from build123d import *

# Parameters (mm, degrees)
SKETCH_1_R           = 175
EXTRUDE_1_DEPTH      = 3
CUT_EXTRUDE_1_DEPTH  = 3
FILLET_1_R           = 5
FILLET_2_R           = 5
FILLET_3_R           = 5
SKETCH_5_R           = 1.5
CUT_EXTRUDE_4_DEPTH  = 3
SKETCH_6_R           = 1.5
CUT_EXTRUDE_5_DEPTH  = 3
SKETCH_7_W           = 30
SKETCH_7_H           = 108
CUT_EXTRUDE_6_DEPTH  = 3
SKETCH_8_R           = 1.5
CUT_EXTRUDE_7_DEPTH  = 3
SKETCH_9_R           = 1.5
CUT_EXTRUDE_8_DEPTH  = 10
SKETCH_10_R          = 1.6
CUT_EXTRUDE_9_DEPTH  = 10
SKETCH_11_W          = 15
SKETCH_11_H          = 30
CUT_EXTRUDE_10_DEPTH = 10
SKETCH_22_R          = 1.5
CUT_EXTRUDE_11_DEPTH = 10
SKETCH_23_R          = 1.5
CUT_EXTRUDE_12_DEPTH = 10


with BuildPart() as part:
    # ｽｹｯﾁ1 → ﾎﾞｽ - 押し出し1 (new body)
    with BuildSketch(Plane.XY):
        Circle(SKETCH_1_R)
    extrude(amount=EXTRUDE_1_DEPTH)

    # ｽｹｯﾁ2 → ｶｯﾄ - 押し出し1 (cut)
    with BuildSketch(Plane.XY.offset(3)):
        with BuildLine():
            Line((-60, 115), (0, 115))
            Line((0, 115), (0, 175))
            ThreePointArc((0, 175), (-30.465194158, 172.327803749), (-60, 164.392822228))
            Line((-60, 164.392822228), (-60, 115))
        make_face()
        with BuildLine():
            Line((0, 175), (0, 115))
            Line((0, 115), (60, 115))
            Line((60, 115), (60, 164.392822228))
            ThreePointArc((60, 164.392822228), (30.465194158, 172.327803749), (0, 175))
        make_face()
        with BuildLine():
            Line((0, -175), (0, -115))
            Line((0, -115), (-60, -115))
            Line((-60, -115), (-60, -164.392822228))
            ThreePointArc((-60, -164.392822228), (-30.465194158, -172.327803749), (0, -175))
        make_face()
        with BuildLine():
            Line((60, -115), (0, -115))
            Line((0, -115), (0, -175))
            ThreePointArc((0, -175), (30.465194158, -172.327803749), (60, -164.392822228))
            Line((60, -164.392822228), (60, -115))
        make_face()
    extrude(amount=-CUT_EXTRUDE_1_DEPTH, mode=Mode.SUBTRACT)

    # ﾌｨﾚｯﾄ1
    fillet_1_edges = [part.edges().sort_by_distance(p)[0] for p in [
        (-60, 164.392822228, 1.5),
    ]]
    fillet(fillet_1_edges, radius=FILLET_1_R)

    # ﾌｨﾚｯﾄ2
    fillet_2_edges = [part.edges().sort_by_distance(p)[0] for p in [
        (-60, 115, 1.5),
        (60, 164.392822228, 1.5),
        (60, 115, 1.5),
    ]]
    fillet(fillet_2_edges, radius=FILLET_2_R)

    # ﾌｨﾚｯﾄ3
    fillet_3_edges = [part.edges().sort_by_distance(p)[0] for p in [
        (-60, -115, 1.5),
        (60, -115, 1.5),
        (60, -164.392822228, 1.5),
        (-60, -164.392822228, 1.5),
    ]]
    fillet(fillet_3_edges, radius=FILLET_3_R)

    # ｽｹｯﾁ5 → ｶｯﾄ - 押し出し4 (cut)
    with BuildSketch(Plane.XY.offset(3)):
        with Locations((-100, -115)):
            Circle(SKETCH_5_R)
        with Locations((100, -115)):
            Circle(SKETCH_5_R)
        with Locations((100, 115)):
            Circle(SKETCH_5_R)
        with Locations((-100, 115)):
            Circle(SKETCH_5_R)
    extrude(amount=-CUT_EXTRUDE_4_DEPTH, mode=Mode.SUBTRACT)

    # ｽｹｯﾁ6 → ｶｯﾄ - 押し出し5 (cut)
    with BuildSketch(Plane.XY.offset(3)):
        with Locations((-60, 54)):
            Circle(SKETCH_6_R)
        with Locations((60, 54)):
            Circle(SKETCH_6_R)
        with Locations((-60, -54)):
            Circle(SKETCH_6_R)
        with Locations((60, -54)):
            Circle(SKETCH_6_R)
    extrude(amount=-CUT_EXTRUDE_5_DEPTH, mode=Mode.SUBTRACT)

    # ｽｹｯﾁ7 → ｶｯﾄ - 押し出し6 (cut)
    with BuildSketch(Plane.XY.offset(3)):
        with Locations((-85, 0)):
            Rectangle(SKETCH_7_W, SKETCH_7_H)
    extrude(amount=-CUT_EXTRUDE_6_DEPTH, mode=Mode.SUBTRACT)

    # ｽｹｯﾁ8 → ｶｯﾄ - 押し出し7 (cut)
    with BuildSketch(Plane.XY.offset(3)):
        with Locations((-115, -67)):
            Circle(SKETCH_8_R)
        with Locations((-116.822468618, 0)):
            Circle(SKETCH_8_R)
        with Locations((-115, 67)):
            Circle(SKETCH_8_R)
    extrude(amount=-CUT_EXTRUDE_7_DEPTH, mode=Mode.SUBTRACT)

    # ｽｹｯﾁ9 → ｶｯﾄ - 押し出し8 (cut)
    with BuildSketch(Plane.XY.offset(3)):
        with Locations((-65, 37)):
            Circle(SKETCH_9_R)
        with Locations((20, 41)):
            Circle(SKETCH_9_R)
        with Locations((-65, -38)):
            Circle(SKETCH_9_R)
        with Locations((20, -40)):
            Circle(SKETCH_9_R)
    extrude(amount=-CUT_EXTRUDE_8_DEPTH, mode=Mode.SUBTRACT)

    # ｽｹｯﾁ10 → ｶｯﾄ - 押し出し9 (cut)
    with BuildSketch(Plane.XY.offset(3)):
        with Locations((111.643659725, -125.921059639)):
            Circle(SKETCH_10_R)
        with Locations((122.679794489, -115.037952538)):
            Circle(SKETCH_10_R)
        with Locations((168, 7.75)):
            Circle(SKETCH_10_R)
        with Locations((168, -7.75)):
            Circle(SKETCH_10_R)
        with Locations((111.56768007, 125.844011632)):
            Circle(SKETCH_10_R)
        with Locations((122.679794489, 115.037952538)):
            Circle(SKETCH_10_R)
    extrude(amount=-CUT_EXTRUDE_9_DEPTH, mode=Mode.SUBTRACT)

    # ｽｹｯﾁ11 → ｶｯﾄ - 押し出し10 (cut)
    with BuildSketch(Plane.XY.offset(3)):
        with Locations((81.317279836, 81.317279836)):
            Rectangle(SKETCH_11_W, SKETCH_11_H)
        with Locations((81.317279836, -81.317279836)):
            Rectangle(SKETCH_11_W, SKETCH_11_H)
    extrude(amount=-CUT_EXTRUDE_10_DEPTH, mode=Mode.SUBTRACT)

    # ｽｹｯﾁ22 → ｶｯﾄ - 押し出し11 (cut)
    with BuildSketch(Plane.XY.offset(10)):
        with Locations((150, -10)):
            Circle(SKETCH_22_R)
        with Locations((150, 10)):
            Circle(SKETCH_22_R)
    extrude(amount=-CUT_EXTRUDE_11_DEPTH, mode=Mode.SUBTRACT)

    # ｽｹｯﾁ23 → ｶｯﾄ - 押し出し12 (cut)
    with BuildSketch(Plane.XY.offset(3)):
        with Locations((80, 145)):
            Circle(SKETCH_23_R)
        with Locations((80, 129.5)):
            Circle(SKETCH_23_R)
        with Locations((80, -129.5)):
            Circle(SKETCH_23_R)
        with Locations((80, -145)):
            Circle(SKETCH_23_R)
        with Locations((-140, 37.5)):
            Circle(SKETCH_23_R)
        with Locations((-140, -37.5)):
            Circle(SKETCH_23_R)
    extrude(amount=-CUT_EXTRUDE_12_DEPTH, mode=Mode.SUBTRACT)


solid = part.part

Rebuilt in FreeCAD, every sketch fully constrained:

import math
import FreeCAD as App
import Part
import Sketcher
Q = App.Units.Quantity


def edges_at(feature, points):
    """Names of the edges that pass closest to the given points."""
    edges = feature.Shape.Edges
    near = lambda p: min(range(len(edges)), key=lambda i: edges[i].distToShape(Part.Vertex(*p))[0])
    return sorted({f"Edge{near(p) + 1}" for p in points})


def add_polygon(sketch, points):
    """Adds a closed chain of lines whose ends are joined by coincident constraints."""
    first, n = sketch.GeometryCount, len(points)
    for a, b in zip(points, points[1:] + points[:1]):
        sketch.addGeometry(Part.LineSegment(App.Vector(*a, 0), App.Vector(*b, 0)), False)
    for i in range(n):
        sketch.addConstraint(Sketcher.Constraint("Coincident", first + i, 2, first + (i + 1) % n, 1))

doc = App.newDocument("Part")
params = doc.addObject("Spreadsheet::Sheet", "Params")
for row, (alias, value) in enumerate([
    ("sketch1_diameter", "350 mm"),
    ("pad1_length", "3 mm"),
    ("sketch2_radius", "175 mm"),
    ("sketch2_width", "120 mm"),
    ("pocket1_length", "3 mm"),
    ("fillet_radius", "5 mm"),
    ("fillet2_radius", "5 mm"),
    ("fillet3_radius", "5 mm"),
    ("sketch3_diameter", "3 mm"),
    ("pocket2_length", "3 mm"),
    ("sketch4_diameter", "3 mm"),
    ("pocket3_length", "3 mm"),
    ("sketch5_width", "30 mm"),
    ("sketch5_height", "108 mm"),
    ("pocket4_length", "3 mm"),
    ("sketch6_diameter", "3 mm"),
    ("pocket5_length", "3 mm"),
    ("sketch7_diameter", "3 mm"),
    ("pocket6_length", "10 mm"),
    ("sketch8_diameter", "3.2 mm"),
    ("pocket7_length", "10 mm"),
    ("sketch9_width", "15 mm"),
    ("sketch9_height", "30 mm"),
    ("pocket8_length", "10 mm"),
    ("sketch10_diameter", "3 mm"),
    ("pocket9_length", "10 mm"),
    ("sketch11_diameter", "3 mm"),
    ("pocket10_length", "10 mm"),
], start=1):
    params.set(f"A{row}", alias)
    params.set(f"B{row}", "=" + value)
    params.setAlias(f"B{row}", alias)

body = doc.addObject("PartDesign::Body", "Body")

# Sketch on XY plane
sketch1 = body.newObject("Sketcher::SketchObject", "Sketch")
sketch1.AttachmentSupport = (doc.getObject("XY_Plane"), [""])
sketch1.MapMode = "FlatFace"
sketch1.addGeometry(Part.Circle(App.Vector(0, 0, 0), App.Vector(0, 0, 1), 175), False)
sketch1.addConstraint([
    Sketcher.Constraint("Coincident", 0, 3, -1, 1),
    Sketcher.Constraint("Diameter", 0, Q("350 mm")),
])
sketch1.setExpression("Constraints[1]", "Params.sketch1_diameter")
pad1 = body.newObject("PartDesign::Pad", "Pad")
pad1.Profile = sketch1
pad1.setExpression("Length", "Params.pad1_length")

# Sketch on XY plane
sketch2 = body.newObject("Sketcher::SketchObject", "Sketch001")
sketch2.AttachmentSupport = (doc.getObject("XY_Plane"), [""])
sketch2.MapMode = "FlatFace"
sketch2.AttachmentOffset = App.Placement(App.Vector(0, 0, 3), App.Rotation())
sketch2.addGeometry([
    Part.LineSegment(App.Vector(-60, 115, 0), App.Vector(60, 115, 0)),  # 0
    Part.LineSegment(App.Vector(60, 115, 0), App.Vector(60, 164, 0)),  # 1
    Part.ArcOfCircle(Part.Circle(App.Vector(0, 0, 0), App.Vector(0, 0, 1), 175), math.radians(70), math.radians(90)),  # 2
    Part.ArcOfCircle(Part.Circle(App.Vector(0, 0, 0), App.Vector(0, 0, 1), 175), math.radians(90), math.radians(110)),  # 3
    Part.LineSegment(App.Vector(-60, 164, 0), App.Vector(-60, 115, 0)),  # 4
    Part.LineSegment(App.Vector(-60, -115, 0), App.Vector(-60, -164, 0)),  # 5
    Part.ArcOfCircle(Part.Circle(App.Vector(0, 0, 0), App.Vector(0, 0, 1), 175), math.radians(-110), math.radians(-90)),  # 6
    Part.ArcOfCircle(Part.Circle(App.Vector(0, 0, 0), App.Vector(0, 0, 1), 175), math.radians(-90), math.radians(-70)),  # 7
    Part.LineSegment(App.Vector(60, -164, 0), App.Vector(60, -115, 0)),  # 8
    Part.LineSegment(App.Vector(60, -115, 0), App.Vector(-60, -115, 0)),  # 9
], False)
sketch2.addConstraint([
    Sketcher.Constraint("Coincident", 0, 2, 1, 1),
    Sketcher.Constraint("Coincident", 1, 2, 2, 1),
    Sketcher.Constraint("Tangent", 2, 2, 3, 1),
    Sketcher.Constraint("Coincident", 3, 2, 4, 1),
    Sketcher.Constraint("Coincident", 4, 2, 0, 1),
    Sketcher.Constraint("Coincident", 5, 2, 6, 1),
    Sketcher.Constraint("Tangent", 6, 2, 7, 1),
    Sketcher.Constraint("Coincident", 7, 2, 8, 1),
    Sketcher.Constraint("Coincident", 8, 2, 9, 1),
    Sketcher.Constraint("Coincident", 9, 2, 5, 1),
    Sketcher.Constraint("Horizontal", 0),
    Sketcher.Constraint("Vertical", 1),
    Sketcher.Constraint("Vertical", 4),
    Sketcher.Constraint("Vertical", 5),
    Sketcher.Constraint("Vertical", 8),
    Sketcher.Constraint("Horizontal", 9),
    Sketcher.Constraint("Coincident", 2, 3, -1, 1),
    Sketcher.Constraint("Coincident", 6, 3, -1, 1),
    Sketcher.Constraint("Equal", 2, 3),
    Sketcher.Constraint("Equal", 3, 6),
    Sketcher.Constraint("Equal", 6, 7),
    Sketcher.Constraint("Symmetric", 4, 2, 8, 2, -1, 1),
    Sketcher.Constraint("PointOnObject", 2, 2, -2),
    Sketcher.Constraint("PointOnObject", 6, 2, -2),
    Sketcher.Constraint("Horizontal", 1, 2, 3, 2),
    Sketcher.Constraint("Horizontal", 5, 2, 7, 2),
    Sketcher.Constraint("Radius", 2, Q("175 mm")),
    Sketcher.Constraint("DistanceX", 0, 1, 0, 2, Q("120 mm")),
    Sketcher.Constraint("DistanceY", -1, 1, 0, 2, Q("115 mm")),
])
sketch2.setExpression("Constraints[26]", "Params.sketch2_radius")
sketch2.setExpression("Constraints[27]", "Params.sketch2_width")
pocket1 = body.newObject("PartDesign::Pocket", "Pocket")
pocket1.Profile = sketch2
pocket1.setExpression("Length", "Params.pocket1_length")
doc.recompute()

fillet = body.newObject("PartDesign::Fillet", "Fillet")
fillet.Base = (pocket1, edges_at(pocket1, [(-60, 164.393, 1.5)]))
fillet.setExpression("Radius", "Params.fillet_radius")
doc.recompute()

fillet2 = body.newObject("PartDesign::Fillet", "Fillet001")
fillet2.Base = (fillet, edges_at(fillet, [(-60, 115, 1.5), (60, 164.393, 1.5), (60, 115, 1.5)]))
fillet2.setExpression("Radius", "Params.fillet2_radius")
doc.recompute()

fillet3 = body.newObject("PartDesign::Fillet", "Fillet002")
fillet3.Base = (fillet2, edges_at(fillet2, [
    (-60, -115, 1.5),
    (60, -115, 1.5),
    (60, -164.393, 1.5),
    (-60, -164.393, 1.5),
]))
fillet3.setExpression("Radius", "Params.fillet3_radius")

# Sketch on XY plane
sketch3 = body.newObject("Sketcher::SketchObject", "Sketch002")
sketch3.AttachmentSupport = (doc.getObject("XY_Plane"), [""])
sketch3.MapMode = "FlatFace"
sketch3.AttachmentOffset = App.Placement(App.Vector(0, 0, 3), App.Rotation())
sketch3.addGeometry([
    Part.Circle(App.Vector(-100, -115, 0), App.Vector(0, 0, 1), 1.5),
    Part.Circle(App.Vector(100, -115, 0), App.Vector(0, 0, 1), 1.5),
    Part.Circle(App.Vector(100, 115, 0), App.Vector(0, 0, 1), 1.5),
    Part.Circle(App.Vector(-100, 115, 0), App.Vector(0, 0, 1), 1.5),
], False)
sketch3.addConstraint([
    Sketcher.Constraint("Equal", 0, 1),
    Sketcher.Constraint("Equal", 1, 2),
    Sketcher.Constraint("Equal", 2, 3),
    Sketcher.Constraint("Symmetric", 0, 3, 2, 3, -1, 1),
    Sketcher.Constraint("Symmetric", 1, 3, 3, 3, -1, 1),
    Sketcher.Constraint("Symmetric", 0, 3, 1, 3, -2),
    Sketcher.Constraint("Diameter", 0, Q("3 mm")),
    Sketcher.Constraint("DistanceX", 0, 3, -1, 1, Q("100 mm")),
    Sketcher.Constraint("DistanceY", 0, 3, -1, 1, Q("115 mm")),
])
sketch3.setExpression("Constraints[6]", "Params.sketch3_diameter")
pocket2 = body.newObject("PartDesign::Pocket", "Pocket001")
pocket2.Profile = sketch3
pocket2.setExpression("Length", "Params.pocket2_length")

# Sketch on XY plane
sketch4 = body.newObject("Sketcher::SketchObject", "Sketch003")
sketch4.AttachmentSupport = (doc.getObject("XY_Plane"), [""])
sketch4.MapMode = "FlatFace"
sketch4.AttachmentOffset = App.Placement(App.Vector(0, 0, 3), App.Rotation())
sketch4.addGeometry([
    Part.Circle(App.Vector(-60, 54, 0), App.Vector(0, 0, 1), 1.5),
    Part.Circle(App.Vector(60, 54, 0), App.Vector(0, 0, 1), 1.5),
    Part.Circle(App.Vector(-60, -54, 0), App.Vector(0, 0, 1), 1.5),
    Part.Circle(App.Vector(60, -54, 0), App.Vector(0, 0, 1), 1.5),
], False)
sketch4.addConstraint([
    Sketcher.Constraint("Equal", 0, 1),
    Sketcher.Constraint("Equal", 1, 2),
    Sketcher.Constraint("Equal", 2, 3),
    Sketcher.Constraint("Symmetric", 1, 3, 2, 3, -1, 1),
    Sketcher.Constraint("Symmetric", 0, 3, 3, 3, -1, 1),
    Sketcher.Constraint("Symmetric", 0, 3, 1, 3, -2),
    Sketcher.Constraint("Diameter", 0, Q("3 mm")),
    Sketcher.Constraint("DistanceX", 0, 3, -1, 1, Q("60 mm")),
    Sketcher.Constraint("DistanceY", -1, 1, 0, 3, Q("54 mm")),
])
sketch4.setExpression("Constraints[6]", "Params.sketch4_diameter")
pocket3 = body.newObject("PartDesign::Pocket", "Pocket002")
pocket3.Profile = sketch4
pocket3.setExpression("Length", "Params.pocket3_length")

# Sketch on XY plane
sketch5 = body.newObject("Sketcher::SketchObject", "Sketch004")
sketch5.AttachmentSupport = (doc.getObject("XY_Plane"), [""])
sketch5.MapMode = "FlatFace"
sketch5.AttachmentOffset = App.Placement(App.Vector(0, 0, 3), App.Rotation())
add_polygon(sketch5, [(-100, 54), (-100, -54), (-70, -54), (-70, 54)])  # lines 0-3
sketch5.addConstraint([
    Sketcher.Constraint("Vertical", 0),
    Sketcher.Constraint("Horizontal", 1),
    Sketcher.Constraint("Vertical", 2),
    Sketcher.Constraint("Horizontal", 3),
    Sketcher.Constraint("DistanceX", 1, 1, 1, 2, Q("30 mm")),
    Sketcher.Constraint("DistanceY", 0, 2, 0, 1, Q("108 mm")),
    Sketcher.Constraint("DistanceX", 0, 2, -1, 1, Q("100 mm")),
    Sketcher.Constraint("DistanceY", 0, 2, -1, 1, Q("54 mm")),
])
sketch5.setExpression("Constraints[8]", "Params.sketch5_width")
sketch5.setExpression("Constraints[9]", "Params.sketch5_height")
pocket4 = body.newObject("PartDesign::Pocket", "Pocket003")
pocket4.Profile = sketch5
pocket4.setExpression("Length", "Params.pocket4_length")

# Sketch on XY plane
sketch6 = body.newObject("Sketcher::SketchObject", "Sketch005")
sketch6.AttachmentSupport = (doc.getObject("XY_Plane"), [""])
sketch6.MapMode = "FlatFace"
sketch6.AttachmentOffset = App.Placement(App.Vector(0, 0, 3), App.Rotation())
sketch6.addGeometry([
    Part.Circle(App.Vector(-115, -67, 0), App.Vector(0, 0, 1), 1.5),
    Part.Circle(App.Vector(-116.8, 0, 0), App.Vector(0, 0, 1), 1.5),
    Part.Circle(App.Vector(-115, 67, 0), App.Vector(0, 0, 1), 1.5),
], False)
sketch6.addConstraint([
    Sketcher.Constraint("Equal", 0, 1),
    Sketcher.Constraint("Equal", 1, 2),
    Sketcher.Constraint("Symmetric", 0, 3, 2, 3, -1),
    Sketcher.Constraint("PointOnObject", 1, 3, -1),
    Sketcher.Constraint("Diameter", 0, Q("3 mm")),
    Sketcher.Constraint("DistanceX", 0, 3, -1, 1, Q("115 mm")),
    Sketcher.Constraint("DistanceY", 0, 3, -1, 1, Q("67 mm")),
    Sketcher.Constraint("DistanceX", 1, 3, -1, 1, Q("116.822469 mm")),
])
sketch6.setExpression("Constraints[4]", "Params.sketch6_diameter")
pocket5 = body.newObject("PartDesign::Pocket", "Pocket004")
pocket5.Profile = sketch6
pocket5.setExpression("Length", "Params.pocket5_length")

# Sketch on XY plane
sketch7 = body.newObject("Sketcher::SketchObject", "Sketch006")
sketch7.AttachmentSupport = (doc.getObject("XY_Plane"), [""])
sketch7.MapMode = "FlatFace"
sketch7.AttachmentOffset = App.Placement(App.Vector(0, 0, 3), App.Rotation())
sketch7.addGeometry([
    Part.Circle(App.Vector(-65, 37, 0), App.Vector(0, 0, 1), 1.5),
    Part.Circle(App.Vector(20, 41, 0), App.Vector(0, 0, 1), 1.5),
    Part.Circle(App.Vector(-65, -38, 0), App.Vector(0, 0, 1), 1.5),
    Part.Circle(App.Vector(20, -40, 0), App.Vector(0, 0, 1), 1.5),
], False)
sketch7.addConstraint([
    Sketcher.Constraint("Equal", 0, 1),
    Sketcher.Constraint("Equal", 1, 2),
    Sketcher.Constraint("Equal", 2, 3),
    Sketcher.Constraint("Vertical", 0, 3, 2, 3),
    Sketcher.Constraint("Vertical", 1, 3, 3, 3),
    Sketcher.Constraint("Diameter", 0, Q("3 mm")),
    Sketcher.Constraint("DistanceX", 0, 3, -1, 1, Q("65 mm")),
    Sketcher.Constraint("DistanceY", -1, 1, 0, 3, Q("37 mm")),
    Sketcher.Constraint("DistanceX", -1, 1, 1, 3, Q("20 mm")),
    Sketcher.Constraint("DistanceY", -1, 1, 1, 3, Q("41 mm")),
    Sketcher.Constraint("DistanceY", 2, 3, -1, 1, Q("38 mm")),
    Sketcher.Constraint("DistanceY", 3, 3, -1, 1, Q("40 mm")),
])
sketch7.setExpression("Constraints[5]", "Params.sketch7_diameter")
pocket6 = body.newObject("PartDesign::Pocket", "Pocket005")
pocket6.Profile = sketch7
pocket6.setExpression("Length", "Params.pocket6_length")

# Sketch on XY plane
sketch8 = body.newObject("Sketcher::SketchObject", "Sketch007")
sketch8.AttachmentSupport = (doc.getObject("XY_Plane"), [""])
sketch8.MapMode = "FlatFace"
sketch8.AttachmentOffset = App.Placement(App.Vector(0, 0, 3), App.Rotation())
sketch8.addGeometry([
    Part.Circle(App.Vector(111.6, -125.9, 0), App.Vector(0, 0, 1), 1.6),  # 0
    Part.Circle(App.Vector(122.7, -115, 0), App.Vector(0, 0, 1), 1.6),  # 1
    Part.Circle(App.Vector(168, 7.8, 0), App.Vector(0, 0, 1), 1.6),  # 2
    Part.Circle(App.Vector(168, -7.8, 0), App.Vector(0, 0, 1), 1.6),  # 3
    Part.Circle(App.Vector(111.6, 125.8, 0), App.Vector(0, 0, 1), 1.6),  # 4
    Part.Circle(App.Vector(122.7, 115, 0), App.Vector(0, 0, 1), 1.6),  # 5
], False)
sketch8.addConstraint([
    Sketcher.Constraint("Equal", 0, 1),
    Sketcher.Constraint("Equal", 1, 2),
    Sketcher.Constraint("Equal", 2, 3),
    Sketcher.Constraint("Equal", 3, 4),
    Sketcher.Constraint("Equal", 4, 5),
    Sketcher.Constraint("Symmetric", 2, 3, 3, 3, -1),
    Sketcher.Constraint("Symmetric", 1, 3, 5, 3, -1),
    Sketcher.Constraint("Diameter", 0, Q("3.2 mm")),
    Sketcher.Constraint("DistanceX", -1, 1, 2, 3, Q("168 mm")),
    Sketcher.Constraint("DistanceY", 3, 3, 2, 3, Q("15.5 mm")),
    Sketcher.Constraint("DistanceX", -1, 1, 0, 3, Q("111.64366 mm")),
    Sketcher.Constraint("DistanceY", 0, 3, -1, 1, Q("125.92106 mm")),
    Sketcher.Constraint("DistanceX", -1, 1, 4, 3, Q("111.56768 mm")),
    Sketcher.Constraint("DistanceY", -1, 1, 4, 3, Q("125.844012 mm")),
    Sketcher.Constraint("DistanceY", 5, 3, 4, 3, Q("10.806059 mm")),
    Sketcher.Constraint("DistanceX", -1, 1, 1, 3, Q("122.679794 mm")),
])
sketch8.setExpression("Constraints[7]", "Params.sketch8_diameter")
pocket7 = body.newObject("PartDesign::Pocket", "Pocket006")
pocket7.Profile = sketch8
pocket7.setExpression("Length", "Params.pocket7_length")

# Sketch on XY plane
sketch9 = body.newObject("Sketcher::SketchObject", "Sketch008")
sketch9.AttachmentSupport = (doc.getObject("XY_Plane"), [""])
sketch9.MapMode = "FlatFace"
sketch9.AttachmentOffset = App.Placement(App.Vector(0, 0, 3), App.Rotation())
add_polygon(sketch9, [(74, 96), (74, 66), (89, 66), (89, 96)])  # lines 0-3
add_polygon(sketch9, [(74, -66), (74, -96), (89, -96), (89, -66)])  # lines 4-7
sketch9.addConstraint([
    Sketcher.Constraint("Vertical", 0),
    Sketcher.Constraint("Horizontal", 1),
    Sketcher.Constraint("Vertical", 2),
    Sketcher.Constraint("Horizontal", 3),
    Sketcher.Constraint("Vertical", 4),
    Sketcher.Constraint("Horizontal", 5),
    Sketcher.Constraint("Vertical", 6),
    Sketcher.Constraint("Horizontal", 7),
    Sketcher.Constraint("Symmetric", 3, 2, 4, 2, -1),
    Sketcher.Constraint("Symmetric", 1, 2, 6, 2, -1),
    Sketcher.Constraint("DistanceX", 1, 1, 1, 2, Q("15 mm")),
    Sketcher.Constraint("DistanceY", 0, 2, 0, 1, Q("30 mm")),
    Sketcher.Constraint("DistanceX", -1, 1, 0, 2, Q("73.81728 mm")),
    Sketcher.Constraint("DistanceY", -1, 1, 0, 2, Q("66.31728 mm")),
])
sketch9.setExpression("Constraints[18]", "Params.sketch9_width")
sketch9.setExpression("Constraints[19]", "Params.sketch9_height")
pocket8 = body.newObject("PartDesign::Pocket", "Pocket007")
pocket8.Profile = sketch9
pocket8.setExpression("Length", "Params.pocket8_length")

# Sketch on XY plane
sketch10 = body.newObject("Sketcher::SketchObject", "Sketch009")
sketch10.AttachmentSupport = (doc.getObject("XY_Plane"), [""])
sketch10.MapMode = "FlatFace"
sketch10.AttachmentOffset = App.Placement(App.Vector(0, 0, 10), App.Rotation())
sketch10.addGeometry([
    Part.Circle(App.Vector(150, -10, 0), App.Vector(0, 0, 1), 1.5),
    Part.Circle(App.Vector(150, 10, 0), App.Vector(0, 0, 1), 1.5),
], False)
sketch10.addConstraint([
    Sketcher.Constraint("Equal", 0, 1),
    Sketcher.Constraint("Symmetric", 0, 3, 1, 3, -1),
    Sketcher.Constraint("Diameter", 0, Q("3 mm")),
    Sketcher.Constraint("DistanceX", -1, 1, 0, 3, Q("150 mm")),
    Sketcher.Constraint("DistanceY", 0, 3, -1, 1, Q("10 mm")),
])
sketch10.setExpression("Constraints[2]", "Params.sketch10_diameter")
pocket9 = body.newObject("PartDesign::Pocket", "Pocket008")
pocket9.Profile = sketch10
pocket9.setExpression("Length", "Params.pocket9_length")

# Sketch on XY plane
sketch11 = body.newObject("Sketcher::SketchObject", "Sketch010")
sketch11.AttachmentSupport = (doc.getObject("XY_Plane"), [""])
sketch11.MapMode = "FlatFace"
sketch11.AttachmentOffset = App.Placement(App.Vector(0, 0, 3), App.Rotation())
sketch11.addGeometry([
    Part.Circle(App.Vector(80, 145, 0), App.Vector(0, 0, 1), 1.5),  # 0
    Part.Circle(App.Vector(80, 129.5, 0), App.Vector(0, 0, 1), 1.5),  # 1
    Part.Circle(App.Vector(80, -129.5, 0), App.Vector(0, 0, 1), 1.5),  # 2
    Part.Circle(App.Vector(80, -145, 0), App.Vector(0, 0, 1), 1.5),  # 3
    Part.Circle(App.Vector(-140, 37.5, 0), App.Vector(0, 0, 1), 1.5),  # 4
    Part.Circle(App.Vector(-140, -37.5, 0), App.Vector(0, 0, 1), 1.5),  # 5
], False)
sketch11.addConstraint([
    Sketcher.Constraint("Equal", 0, 1),
    Sketcher.Constraint("Equal", 1, 2),
    Sketcher.Constraint("Equal", 2, 3),
    Sketcher.Constraint("Equal", 3, 4),
    Sketcher.Constraint("Equal", 4, 5),
    Sketcher.Constraint("Symmetric", 1, 3, 2, 3, -1),
    Sketcher.Constraint("Symmetric", 0, 3, 3, 3, -1),
    Sketcher.Constraint("Symmetric", 4, 3, 5, 3, -1),
    Sketcher.Constraint("Vertical", 0, 3, 1, 3),
    Sketcher.Constraint("Diameter", 0, Q("3 mm")),
    Sketcher.Constraint("DistanceX", -1, 1, 0, 3, Q("80 mm")),
    Sketcher.Constraint("DistanceY", -1, 1, 0, 3, Q("145 mm")),
    Sketcher.Constraint("DistanceX", 4, 3, -1, 1, Q("140 mm")),
    Sketcher.Constraint("DistanceY", 2, 3, 1, 3, Q("259 mm")),
    Sketcher.Constraint("DistanceY", 4, 3, 1, 3, Q("92 mm")),
])
sketch11.setExpression("Constraints[9]", "Params.sketch11_diameter")
pocket10 = body.newObject("PartDesign::Pocket", "Pocket009")
pocket10.Profile = sketch11
pocket10.setExpression("Length", "Params.pocket10_length")

doc.recompute()
